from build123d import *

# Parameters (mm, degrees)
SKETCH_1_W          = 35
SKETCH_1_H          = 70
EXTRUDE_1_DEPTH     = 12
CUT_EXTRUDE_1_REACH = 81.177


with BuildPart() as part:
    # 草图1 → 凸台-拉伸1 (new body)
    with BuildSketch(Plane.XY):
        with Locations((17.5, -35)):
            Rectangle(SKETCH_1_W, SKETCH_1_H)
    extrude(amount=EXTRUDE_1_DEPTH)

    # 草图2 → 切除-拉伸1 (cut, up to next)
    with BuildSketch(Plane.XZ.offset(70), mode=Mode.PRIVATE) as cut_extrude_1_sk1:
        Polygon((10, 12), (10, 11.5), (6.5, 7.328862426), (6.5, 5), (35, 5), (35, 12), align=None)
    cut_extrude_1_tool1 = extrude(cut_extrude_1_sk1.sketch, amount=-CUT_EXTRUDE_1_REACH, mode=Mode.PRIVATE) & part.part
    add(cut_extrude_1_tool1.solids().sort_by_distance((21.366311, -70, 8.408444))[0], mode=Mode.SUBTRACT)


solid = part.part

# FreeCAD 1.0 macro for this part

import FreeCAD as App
import Part
import Sketcher
from FreeCAD import Vector
Q = App.Units.Quantity

doc = App.newDocument("Part")
params = doc.addObject("Spreadsheet::Sheet", "Params")
for row, (alias, value) in enumerate([
    ("sketch1_width", "35 mm"),
    ("sketch1_height", "70 mm"),
    ("pad1_length", "12 mm"),
    ("sketch2_width", "25 mm"),
    ("sketch2_height", "7 mm"),
    ("sketch2_width2", "28.5 mm"),
    ("sketch2_height2", "0.5 mm"),
], start=1):
    params.set(f"A{row}", alias)
    params.set(f"B{row}", "=" + value)
    params.setAlias(f"B{row}", alias)

body = doc.addObject("PartDesign::Body", "Body")

# Sketch on XY plane
sketch1 = body.newObject("Sketcher::SketchObject", "Sketch")
sketch1.AttachmentSupport = (doc.getObject("XY_Plane"), [""])
sketch1.MapMode = "FlatFace"
sketch1.addGeometry(Part.LineSegment(Vector(0, 0, 0), Vector(0, -70, 0)), False)
sketch1.addGeometry(Part.LineSegment(Vector(0, -70, 0), Vector(35, -70, 0)), False)
sketch1.addGeometry(Part.LineSegment(Vector(35, -70, 0), Vector(35, 0, 0)), False)
sketch1.addGeometry(Part.LineSegment(Vector(35, 0, 0), Vector(0, 0, 0)), False)
sketch1.addConstraint(Sketcher.Constraint("Coincident", 0, 2, 1, 1))
sketch1.addConstraint(Sketcher.Constraint("Coincident", 1, 2, 2, 1))
sketch1.addConstraint(Sketcher.Constraint("Coincident", 2, 2, 3, 1))
sketch1.addConstraint(Sketcher.Constraint("Coincident", 3, 2, 0, 1))
sketch1.addConstraint(Sketcher.Constraint("Vertical", 0))
sketch1.addConstraint(Sketcher.Constraint("Horizontal", 1))
sketch1.addConstraint(Sketcher.Constraint("Vertical", 2))
sketch1.addConstraint(Sketcher.Constraint("Horizontal", 3))
sketch1.addConstraint(Sketcher.Constraint("Coincident", 3, 2, -1, 1))
sketch1.addConstraint(Sketcher.Constraint("DistanceX", 1, 1, 1, 2, 35.0))
sketch1.addConstraint(Sketcher.Constraint("DistanceY", 0, 2, 0, 1, 70.0))
sketch1.setExpression("Constraints[9]", "Params.sketch1_width")
sketch1.setExpression("Constraints[10]", "Params.sketch1_height")
pad1 = body.newObject("PartDesign::Pad", "Pad")
pad1.Profile = sketch1
pad1.setExpression("Length", "Params.pad1_length")

# Sketch on XZ plane
sketch2 = body.newObject("Sketcher::SketchObject", "Sketch001")
sketch2.AttachmentSupport = (doc.getObject("XZ_Plane"), [""])
sketch2.MapMode = "FlatFace"
sketch2.AttachmentOffset = App.Placement(Vector(0, 0, 70), App.Rotation())
sketch2.addGeometry(Part.LineSegment(Vector(10, 12, 0), Vector(10, 11.5, 0)), False)
sketch2.addGeometry(Part.LineSegment(Vector(10, 11.5, 0), Vector(6.5, 7.3, 0)), False)
sketch2.addGeometry(Part.LineSegment(Vector(6.5, 7.3, 0), Vector(6.5, 5, 0)), False)
sketch2.addGeometry(Part.LineSegment(Vector(6.5, 5, 0), Vector(35, 5, 0)), False)
sketch2.addGeometry(Part.LineSegment(Vector(35, 5, 0), Vector(35, 12, 0)), False)
sketch2.addGeometry(Part.LineSegment(Vector(35, 12, 0), Vector(10, 12, 0)), False)
sketch2.addConstraint(Sketcher.Constraint("Coincident", 0, 2, 1, 1))
sketch2.addConstraint(Sketcher.Constraint("Coincident", 1, 2, 2, 1))
sketch2.addConstraint(Sketcher.Constraint("Coincident", 2, 2, 3, 1))
sketch2.addConstraint(Sketcher.Constraint("Coincident", 3, 2, 4, 1))
sketch2.addConstraint(Sketcher.Constraint("Coincident", 4, 2, 5, 1))
sketch2.addConstraint(Sketcher.Constraint("Coincident", 5, 2, 0, 1))
sketch2.addConstraint(Sketcher.Constraint("Vertical", 0))
sketch2.addConstraint(Sketcher.Constraint("Vertical", 2))
sketch2.addConstraint(Sketcher.Constraint("Horizontal", 3))
sketch2.addConstraint(Sketcher.Constraint("Vertical", 4))
sketch2.addConstraint(Sketcher.Constraint("Horizontal", 5))
sketch2.addConstraint(Sketcher.Constraint("DistanceX", 5, 2, 5, 1, 25.0))
sketch2.addConstraint(Sketcher.Constraint("DistanceY", 4, 1, 4, 2, 7.0))
sketch2.addConstraint(Sketcher.Constraint("Angle", 1, Q("-130 deg")))
sketch2.addConstraint(Sketcher.Constraint("DistanceX", 3, 1, 3, 2, 28.5))
sketch2.addConstraint(Sketcher.Constraint("DistanceY", 0, 2, 0, 1, 0.5))
sketch2.addConstraint(Sketcher.Constraint("DistanceX", -1, 1, 0, 2, 10.0))
sketch2.addConstraint(Sketcher.Constraint("DistanceY", -1, 1, 2, 2, 5.0))
sketch2.setExpression("Constraints[11]", "Params.sketch2_width")
sketch2.setExpression("Constraints[12]", "Params.sketch2_height")
sketch2.setExpression("Constraints[14]", "Params.sketch2_width2")
sketch2.setExpression("Constraints[15]", "Params.sketch2_height2")
pocket1 = body.newObject("PartDesign::Pocket", "Pocket")
pocket1.Profile = sketch2
pocket1.Type = "UpToFirst"

doc.recompute()
